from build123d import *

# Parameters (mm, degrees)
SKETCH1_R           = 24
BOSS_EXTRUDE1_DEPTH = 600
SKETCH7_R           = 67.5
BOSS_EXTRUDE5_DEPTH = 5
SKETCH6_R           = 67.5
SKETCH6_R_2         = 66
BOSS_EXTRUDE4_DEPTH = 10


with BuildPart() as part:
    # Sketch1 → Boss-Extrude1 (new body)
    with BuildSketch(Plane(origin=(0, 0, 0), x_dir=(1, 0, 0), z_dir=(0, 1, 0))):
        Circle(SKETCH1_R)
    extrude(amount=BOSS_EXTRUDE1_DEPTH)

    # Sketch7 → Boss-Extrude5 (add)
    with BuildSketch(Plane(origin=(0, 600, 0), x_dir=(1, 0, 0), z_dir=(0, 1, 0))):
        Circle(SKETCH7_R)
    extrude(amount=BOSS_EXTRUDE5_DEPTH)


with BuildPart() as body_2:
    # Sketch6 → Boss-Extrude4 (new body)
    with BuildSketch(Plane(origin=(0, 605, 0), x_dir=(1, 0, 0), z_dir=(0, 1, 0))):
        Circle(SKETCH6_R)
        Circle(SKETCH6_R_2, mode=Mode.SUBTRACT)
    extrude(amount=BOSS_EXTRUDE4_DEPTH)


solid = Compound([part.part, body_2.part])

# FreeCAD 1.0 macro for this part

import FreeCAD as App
import Part
import Sketcher
from FreeCAD import Vector
Q = App.Units.Quantity

doc = App.newDocument("Part")
body = doc.addObject("PartDesign::Body", "Body")

# Sketch on XZ plane
sketch1 = doc.addObject("Sketcher::SketchObject", "Sketch")
body.addObject(sketch1)
sketch1.AttachmentSupport = (doc.XZ_Plane, [""])
sketch1.MapMode = "FlatFace"
sketch1.addGeometry(Part.Circle(Vector(0, 0, 0), Vector(0, 0, 1), 24), False)
sketch1.addConstraint(Sketcher.Constraint("Coincident", 0, 3, -1, 1))
sketch1.addConstraint(Sketcher.Constraint("Diameter", 0, Q("48 mm")))
pad1 = doc.addObject("PartDesign::Pad", "Pad")
body.addObject(pad1)
pad1.Profile = sketch1
pad1.Length = 600
pad1.Reversed = True

# Sketch on XZ plane
sketch2 = doc.addObject("Sketcher::SketchObject", "Sketch001")
body.addObject(sketch2)
sketch2.AttachmentSupport = (doc.XZ_Plane, [""])
sketch2.MapMode = "FlatFace"
sketch2.AttachmentOffset = App.Placement(Vector(0, 0, -600), App.Rotation())
sketch2.addGeometry(Part.Circle(Vector(0, 0, 0), Vector(0, 0, 1), 68), False)
sketch2.addConstraint(Sketcher.Constraint("Coincident", 0, 3, -1, 1))
sketch2.addConstraint(Sketcher.Constraint("Diameter", 0, Q("135 mm")))
pad2 = doc.addObject("PartDesign::Pad", "Pad001")
body.addObject(pad2)
pad2.Profile = sketch2
pad2.Length = 5
pad2.Reversed = True
body2 = doc.addObject("PartDesign::Body", "Body001")

# Sketch on XZ plane
sketch3 = doc.addObject("Sketcher::SketchObject", "Sketch002")
body2.addObject(sketch3)
sketch3.AttachmentSupport = (doc.getObject("XZ_Plane001"), [""])
sketch3.MapMode = "FlatFace"
sketch3.AttachmentOffset = App.Placement(Vector(0, 0, -605), App.Rotation())
sketch3.addGeometry(Part.Circle(Vector(0, 0, 0), Vector(0, 0, 1), 68), False)
sketch3.addGeometry(Part.Circle(Vector(0, 0, 0), Vector(0, 0, 1), 66), False)
sketch3.addConstraint(Sketcher.Constraint("Coincident", 0, 3, -1, 1))
sketch3.addConstraint(Sketcher.Constraint("Coincident", 1, 3, -1, 1))
sketch3.addConstraint(Sketcher.Constraint("Diameter", 0, Q("135 mm")))
sketch3.addConstraint(Sketcher.Constraint("Diameter", 1, Q("132 mm")))
pad3 = doc.addObject("PartDesign::Pad", "Pad002")
body2.addObject(pad3)
pad3.Profile = sketch3
pad3.Length = 10
pad3.Reversed = True

doc.recompute()
